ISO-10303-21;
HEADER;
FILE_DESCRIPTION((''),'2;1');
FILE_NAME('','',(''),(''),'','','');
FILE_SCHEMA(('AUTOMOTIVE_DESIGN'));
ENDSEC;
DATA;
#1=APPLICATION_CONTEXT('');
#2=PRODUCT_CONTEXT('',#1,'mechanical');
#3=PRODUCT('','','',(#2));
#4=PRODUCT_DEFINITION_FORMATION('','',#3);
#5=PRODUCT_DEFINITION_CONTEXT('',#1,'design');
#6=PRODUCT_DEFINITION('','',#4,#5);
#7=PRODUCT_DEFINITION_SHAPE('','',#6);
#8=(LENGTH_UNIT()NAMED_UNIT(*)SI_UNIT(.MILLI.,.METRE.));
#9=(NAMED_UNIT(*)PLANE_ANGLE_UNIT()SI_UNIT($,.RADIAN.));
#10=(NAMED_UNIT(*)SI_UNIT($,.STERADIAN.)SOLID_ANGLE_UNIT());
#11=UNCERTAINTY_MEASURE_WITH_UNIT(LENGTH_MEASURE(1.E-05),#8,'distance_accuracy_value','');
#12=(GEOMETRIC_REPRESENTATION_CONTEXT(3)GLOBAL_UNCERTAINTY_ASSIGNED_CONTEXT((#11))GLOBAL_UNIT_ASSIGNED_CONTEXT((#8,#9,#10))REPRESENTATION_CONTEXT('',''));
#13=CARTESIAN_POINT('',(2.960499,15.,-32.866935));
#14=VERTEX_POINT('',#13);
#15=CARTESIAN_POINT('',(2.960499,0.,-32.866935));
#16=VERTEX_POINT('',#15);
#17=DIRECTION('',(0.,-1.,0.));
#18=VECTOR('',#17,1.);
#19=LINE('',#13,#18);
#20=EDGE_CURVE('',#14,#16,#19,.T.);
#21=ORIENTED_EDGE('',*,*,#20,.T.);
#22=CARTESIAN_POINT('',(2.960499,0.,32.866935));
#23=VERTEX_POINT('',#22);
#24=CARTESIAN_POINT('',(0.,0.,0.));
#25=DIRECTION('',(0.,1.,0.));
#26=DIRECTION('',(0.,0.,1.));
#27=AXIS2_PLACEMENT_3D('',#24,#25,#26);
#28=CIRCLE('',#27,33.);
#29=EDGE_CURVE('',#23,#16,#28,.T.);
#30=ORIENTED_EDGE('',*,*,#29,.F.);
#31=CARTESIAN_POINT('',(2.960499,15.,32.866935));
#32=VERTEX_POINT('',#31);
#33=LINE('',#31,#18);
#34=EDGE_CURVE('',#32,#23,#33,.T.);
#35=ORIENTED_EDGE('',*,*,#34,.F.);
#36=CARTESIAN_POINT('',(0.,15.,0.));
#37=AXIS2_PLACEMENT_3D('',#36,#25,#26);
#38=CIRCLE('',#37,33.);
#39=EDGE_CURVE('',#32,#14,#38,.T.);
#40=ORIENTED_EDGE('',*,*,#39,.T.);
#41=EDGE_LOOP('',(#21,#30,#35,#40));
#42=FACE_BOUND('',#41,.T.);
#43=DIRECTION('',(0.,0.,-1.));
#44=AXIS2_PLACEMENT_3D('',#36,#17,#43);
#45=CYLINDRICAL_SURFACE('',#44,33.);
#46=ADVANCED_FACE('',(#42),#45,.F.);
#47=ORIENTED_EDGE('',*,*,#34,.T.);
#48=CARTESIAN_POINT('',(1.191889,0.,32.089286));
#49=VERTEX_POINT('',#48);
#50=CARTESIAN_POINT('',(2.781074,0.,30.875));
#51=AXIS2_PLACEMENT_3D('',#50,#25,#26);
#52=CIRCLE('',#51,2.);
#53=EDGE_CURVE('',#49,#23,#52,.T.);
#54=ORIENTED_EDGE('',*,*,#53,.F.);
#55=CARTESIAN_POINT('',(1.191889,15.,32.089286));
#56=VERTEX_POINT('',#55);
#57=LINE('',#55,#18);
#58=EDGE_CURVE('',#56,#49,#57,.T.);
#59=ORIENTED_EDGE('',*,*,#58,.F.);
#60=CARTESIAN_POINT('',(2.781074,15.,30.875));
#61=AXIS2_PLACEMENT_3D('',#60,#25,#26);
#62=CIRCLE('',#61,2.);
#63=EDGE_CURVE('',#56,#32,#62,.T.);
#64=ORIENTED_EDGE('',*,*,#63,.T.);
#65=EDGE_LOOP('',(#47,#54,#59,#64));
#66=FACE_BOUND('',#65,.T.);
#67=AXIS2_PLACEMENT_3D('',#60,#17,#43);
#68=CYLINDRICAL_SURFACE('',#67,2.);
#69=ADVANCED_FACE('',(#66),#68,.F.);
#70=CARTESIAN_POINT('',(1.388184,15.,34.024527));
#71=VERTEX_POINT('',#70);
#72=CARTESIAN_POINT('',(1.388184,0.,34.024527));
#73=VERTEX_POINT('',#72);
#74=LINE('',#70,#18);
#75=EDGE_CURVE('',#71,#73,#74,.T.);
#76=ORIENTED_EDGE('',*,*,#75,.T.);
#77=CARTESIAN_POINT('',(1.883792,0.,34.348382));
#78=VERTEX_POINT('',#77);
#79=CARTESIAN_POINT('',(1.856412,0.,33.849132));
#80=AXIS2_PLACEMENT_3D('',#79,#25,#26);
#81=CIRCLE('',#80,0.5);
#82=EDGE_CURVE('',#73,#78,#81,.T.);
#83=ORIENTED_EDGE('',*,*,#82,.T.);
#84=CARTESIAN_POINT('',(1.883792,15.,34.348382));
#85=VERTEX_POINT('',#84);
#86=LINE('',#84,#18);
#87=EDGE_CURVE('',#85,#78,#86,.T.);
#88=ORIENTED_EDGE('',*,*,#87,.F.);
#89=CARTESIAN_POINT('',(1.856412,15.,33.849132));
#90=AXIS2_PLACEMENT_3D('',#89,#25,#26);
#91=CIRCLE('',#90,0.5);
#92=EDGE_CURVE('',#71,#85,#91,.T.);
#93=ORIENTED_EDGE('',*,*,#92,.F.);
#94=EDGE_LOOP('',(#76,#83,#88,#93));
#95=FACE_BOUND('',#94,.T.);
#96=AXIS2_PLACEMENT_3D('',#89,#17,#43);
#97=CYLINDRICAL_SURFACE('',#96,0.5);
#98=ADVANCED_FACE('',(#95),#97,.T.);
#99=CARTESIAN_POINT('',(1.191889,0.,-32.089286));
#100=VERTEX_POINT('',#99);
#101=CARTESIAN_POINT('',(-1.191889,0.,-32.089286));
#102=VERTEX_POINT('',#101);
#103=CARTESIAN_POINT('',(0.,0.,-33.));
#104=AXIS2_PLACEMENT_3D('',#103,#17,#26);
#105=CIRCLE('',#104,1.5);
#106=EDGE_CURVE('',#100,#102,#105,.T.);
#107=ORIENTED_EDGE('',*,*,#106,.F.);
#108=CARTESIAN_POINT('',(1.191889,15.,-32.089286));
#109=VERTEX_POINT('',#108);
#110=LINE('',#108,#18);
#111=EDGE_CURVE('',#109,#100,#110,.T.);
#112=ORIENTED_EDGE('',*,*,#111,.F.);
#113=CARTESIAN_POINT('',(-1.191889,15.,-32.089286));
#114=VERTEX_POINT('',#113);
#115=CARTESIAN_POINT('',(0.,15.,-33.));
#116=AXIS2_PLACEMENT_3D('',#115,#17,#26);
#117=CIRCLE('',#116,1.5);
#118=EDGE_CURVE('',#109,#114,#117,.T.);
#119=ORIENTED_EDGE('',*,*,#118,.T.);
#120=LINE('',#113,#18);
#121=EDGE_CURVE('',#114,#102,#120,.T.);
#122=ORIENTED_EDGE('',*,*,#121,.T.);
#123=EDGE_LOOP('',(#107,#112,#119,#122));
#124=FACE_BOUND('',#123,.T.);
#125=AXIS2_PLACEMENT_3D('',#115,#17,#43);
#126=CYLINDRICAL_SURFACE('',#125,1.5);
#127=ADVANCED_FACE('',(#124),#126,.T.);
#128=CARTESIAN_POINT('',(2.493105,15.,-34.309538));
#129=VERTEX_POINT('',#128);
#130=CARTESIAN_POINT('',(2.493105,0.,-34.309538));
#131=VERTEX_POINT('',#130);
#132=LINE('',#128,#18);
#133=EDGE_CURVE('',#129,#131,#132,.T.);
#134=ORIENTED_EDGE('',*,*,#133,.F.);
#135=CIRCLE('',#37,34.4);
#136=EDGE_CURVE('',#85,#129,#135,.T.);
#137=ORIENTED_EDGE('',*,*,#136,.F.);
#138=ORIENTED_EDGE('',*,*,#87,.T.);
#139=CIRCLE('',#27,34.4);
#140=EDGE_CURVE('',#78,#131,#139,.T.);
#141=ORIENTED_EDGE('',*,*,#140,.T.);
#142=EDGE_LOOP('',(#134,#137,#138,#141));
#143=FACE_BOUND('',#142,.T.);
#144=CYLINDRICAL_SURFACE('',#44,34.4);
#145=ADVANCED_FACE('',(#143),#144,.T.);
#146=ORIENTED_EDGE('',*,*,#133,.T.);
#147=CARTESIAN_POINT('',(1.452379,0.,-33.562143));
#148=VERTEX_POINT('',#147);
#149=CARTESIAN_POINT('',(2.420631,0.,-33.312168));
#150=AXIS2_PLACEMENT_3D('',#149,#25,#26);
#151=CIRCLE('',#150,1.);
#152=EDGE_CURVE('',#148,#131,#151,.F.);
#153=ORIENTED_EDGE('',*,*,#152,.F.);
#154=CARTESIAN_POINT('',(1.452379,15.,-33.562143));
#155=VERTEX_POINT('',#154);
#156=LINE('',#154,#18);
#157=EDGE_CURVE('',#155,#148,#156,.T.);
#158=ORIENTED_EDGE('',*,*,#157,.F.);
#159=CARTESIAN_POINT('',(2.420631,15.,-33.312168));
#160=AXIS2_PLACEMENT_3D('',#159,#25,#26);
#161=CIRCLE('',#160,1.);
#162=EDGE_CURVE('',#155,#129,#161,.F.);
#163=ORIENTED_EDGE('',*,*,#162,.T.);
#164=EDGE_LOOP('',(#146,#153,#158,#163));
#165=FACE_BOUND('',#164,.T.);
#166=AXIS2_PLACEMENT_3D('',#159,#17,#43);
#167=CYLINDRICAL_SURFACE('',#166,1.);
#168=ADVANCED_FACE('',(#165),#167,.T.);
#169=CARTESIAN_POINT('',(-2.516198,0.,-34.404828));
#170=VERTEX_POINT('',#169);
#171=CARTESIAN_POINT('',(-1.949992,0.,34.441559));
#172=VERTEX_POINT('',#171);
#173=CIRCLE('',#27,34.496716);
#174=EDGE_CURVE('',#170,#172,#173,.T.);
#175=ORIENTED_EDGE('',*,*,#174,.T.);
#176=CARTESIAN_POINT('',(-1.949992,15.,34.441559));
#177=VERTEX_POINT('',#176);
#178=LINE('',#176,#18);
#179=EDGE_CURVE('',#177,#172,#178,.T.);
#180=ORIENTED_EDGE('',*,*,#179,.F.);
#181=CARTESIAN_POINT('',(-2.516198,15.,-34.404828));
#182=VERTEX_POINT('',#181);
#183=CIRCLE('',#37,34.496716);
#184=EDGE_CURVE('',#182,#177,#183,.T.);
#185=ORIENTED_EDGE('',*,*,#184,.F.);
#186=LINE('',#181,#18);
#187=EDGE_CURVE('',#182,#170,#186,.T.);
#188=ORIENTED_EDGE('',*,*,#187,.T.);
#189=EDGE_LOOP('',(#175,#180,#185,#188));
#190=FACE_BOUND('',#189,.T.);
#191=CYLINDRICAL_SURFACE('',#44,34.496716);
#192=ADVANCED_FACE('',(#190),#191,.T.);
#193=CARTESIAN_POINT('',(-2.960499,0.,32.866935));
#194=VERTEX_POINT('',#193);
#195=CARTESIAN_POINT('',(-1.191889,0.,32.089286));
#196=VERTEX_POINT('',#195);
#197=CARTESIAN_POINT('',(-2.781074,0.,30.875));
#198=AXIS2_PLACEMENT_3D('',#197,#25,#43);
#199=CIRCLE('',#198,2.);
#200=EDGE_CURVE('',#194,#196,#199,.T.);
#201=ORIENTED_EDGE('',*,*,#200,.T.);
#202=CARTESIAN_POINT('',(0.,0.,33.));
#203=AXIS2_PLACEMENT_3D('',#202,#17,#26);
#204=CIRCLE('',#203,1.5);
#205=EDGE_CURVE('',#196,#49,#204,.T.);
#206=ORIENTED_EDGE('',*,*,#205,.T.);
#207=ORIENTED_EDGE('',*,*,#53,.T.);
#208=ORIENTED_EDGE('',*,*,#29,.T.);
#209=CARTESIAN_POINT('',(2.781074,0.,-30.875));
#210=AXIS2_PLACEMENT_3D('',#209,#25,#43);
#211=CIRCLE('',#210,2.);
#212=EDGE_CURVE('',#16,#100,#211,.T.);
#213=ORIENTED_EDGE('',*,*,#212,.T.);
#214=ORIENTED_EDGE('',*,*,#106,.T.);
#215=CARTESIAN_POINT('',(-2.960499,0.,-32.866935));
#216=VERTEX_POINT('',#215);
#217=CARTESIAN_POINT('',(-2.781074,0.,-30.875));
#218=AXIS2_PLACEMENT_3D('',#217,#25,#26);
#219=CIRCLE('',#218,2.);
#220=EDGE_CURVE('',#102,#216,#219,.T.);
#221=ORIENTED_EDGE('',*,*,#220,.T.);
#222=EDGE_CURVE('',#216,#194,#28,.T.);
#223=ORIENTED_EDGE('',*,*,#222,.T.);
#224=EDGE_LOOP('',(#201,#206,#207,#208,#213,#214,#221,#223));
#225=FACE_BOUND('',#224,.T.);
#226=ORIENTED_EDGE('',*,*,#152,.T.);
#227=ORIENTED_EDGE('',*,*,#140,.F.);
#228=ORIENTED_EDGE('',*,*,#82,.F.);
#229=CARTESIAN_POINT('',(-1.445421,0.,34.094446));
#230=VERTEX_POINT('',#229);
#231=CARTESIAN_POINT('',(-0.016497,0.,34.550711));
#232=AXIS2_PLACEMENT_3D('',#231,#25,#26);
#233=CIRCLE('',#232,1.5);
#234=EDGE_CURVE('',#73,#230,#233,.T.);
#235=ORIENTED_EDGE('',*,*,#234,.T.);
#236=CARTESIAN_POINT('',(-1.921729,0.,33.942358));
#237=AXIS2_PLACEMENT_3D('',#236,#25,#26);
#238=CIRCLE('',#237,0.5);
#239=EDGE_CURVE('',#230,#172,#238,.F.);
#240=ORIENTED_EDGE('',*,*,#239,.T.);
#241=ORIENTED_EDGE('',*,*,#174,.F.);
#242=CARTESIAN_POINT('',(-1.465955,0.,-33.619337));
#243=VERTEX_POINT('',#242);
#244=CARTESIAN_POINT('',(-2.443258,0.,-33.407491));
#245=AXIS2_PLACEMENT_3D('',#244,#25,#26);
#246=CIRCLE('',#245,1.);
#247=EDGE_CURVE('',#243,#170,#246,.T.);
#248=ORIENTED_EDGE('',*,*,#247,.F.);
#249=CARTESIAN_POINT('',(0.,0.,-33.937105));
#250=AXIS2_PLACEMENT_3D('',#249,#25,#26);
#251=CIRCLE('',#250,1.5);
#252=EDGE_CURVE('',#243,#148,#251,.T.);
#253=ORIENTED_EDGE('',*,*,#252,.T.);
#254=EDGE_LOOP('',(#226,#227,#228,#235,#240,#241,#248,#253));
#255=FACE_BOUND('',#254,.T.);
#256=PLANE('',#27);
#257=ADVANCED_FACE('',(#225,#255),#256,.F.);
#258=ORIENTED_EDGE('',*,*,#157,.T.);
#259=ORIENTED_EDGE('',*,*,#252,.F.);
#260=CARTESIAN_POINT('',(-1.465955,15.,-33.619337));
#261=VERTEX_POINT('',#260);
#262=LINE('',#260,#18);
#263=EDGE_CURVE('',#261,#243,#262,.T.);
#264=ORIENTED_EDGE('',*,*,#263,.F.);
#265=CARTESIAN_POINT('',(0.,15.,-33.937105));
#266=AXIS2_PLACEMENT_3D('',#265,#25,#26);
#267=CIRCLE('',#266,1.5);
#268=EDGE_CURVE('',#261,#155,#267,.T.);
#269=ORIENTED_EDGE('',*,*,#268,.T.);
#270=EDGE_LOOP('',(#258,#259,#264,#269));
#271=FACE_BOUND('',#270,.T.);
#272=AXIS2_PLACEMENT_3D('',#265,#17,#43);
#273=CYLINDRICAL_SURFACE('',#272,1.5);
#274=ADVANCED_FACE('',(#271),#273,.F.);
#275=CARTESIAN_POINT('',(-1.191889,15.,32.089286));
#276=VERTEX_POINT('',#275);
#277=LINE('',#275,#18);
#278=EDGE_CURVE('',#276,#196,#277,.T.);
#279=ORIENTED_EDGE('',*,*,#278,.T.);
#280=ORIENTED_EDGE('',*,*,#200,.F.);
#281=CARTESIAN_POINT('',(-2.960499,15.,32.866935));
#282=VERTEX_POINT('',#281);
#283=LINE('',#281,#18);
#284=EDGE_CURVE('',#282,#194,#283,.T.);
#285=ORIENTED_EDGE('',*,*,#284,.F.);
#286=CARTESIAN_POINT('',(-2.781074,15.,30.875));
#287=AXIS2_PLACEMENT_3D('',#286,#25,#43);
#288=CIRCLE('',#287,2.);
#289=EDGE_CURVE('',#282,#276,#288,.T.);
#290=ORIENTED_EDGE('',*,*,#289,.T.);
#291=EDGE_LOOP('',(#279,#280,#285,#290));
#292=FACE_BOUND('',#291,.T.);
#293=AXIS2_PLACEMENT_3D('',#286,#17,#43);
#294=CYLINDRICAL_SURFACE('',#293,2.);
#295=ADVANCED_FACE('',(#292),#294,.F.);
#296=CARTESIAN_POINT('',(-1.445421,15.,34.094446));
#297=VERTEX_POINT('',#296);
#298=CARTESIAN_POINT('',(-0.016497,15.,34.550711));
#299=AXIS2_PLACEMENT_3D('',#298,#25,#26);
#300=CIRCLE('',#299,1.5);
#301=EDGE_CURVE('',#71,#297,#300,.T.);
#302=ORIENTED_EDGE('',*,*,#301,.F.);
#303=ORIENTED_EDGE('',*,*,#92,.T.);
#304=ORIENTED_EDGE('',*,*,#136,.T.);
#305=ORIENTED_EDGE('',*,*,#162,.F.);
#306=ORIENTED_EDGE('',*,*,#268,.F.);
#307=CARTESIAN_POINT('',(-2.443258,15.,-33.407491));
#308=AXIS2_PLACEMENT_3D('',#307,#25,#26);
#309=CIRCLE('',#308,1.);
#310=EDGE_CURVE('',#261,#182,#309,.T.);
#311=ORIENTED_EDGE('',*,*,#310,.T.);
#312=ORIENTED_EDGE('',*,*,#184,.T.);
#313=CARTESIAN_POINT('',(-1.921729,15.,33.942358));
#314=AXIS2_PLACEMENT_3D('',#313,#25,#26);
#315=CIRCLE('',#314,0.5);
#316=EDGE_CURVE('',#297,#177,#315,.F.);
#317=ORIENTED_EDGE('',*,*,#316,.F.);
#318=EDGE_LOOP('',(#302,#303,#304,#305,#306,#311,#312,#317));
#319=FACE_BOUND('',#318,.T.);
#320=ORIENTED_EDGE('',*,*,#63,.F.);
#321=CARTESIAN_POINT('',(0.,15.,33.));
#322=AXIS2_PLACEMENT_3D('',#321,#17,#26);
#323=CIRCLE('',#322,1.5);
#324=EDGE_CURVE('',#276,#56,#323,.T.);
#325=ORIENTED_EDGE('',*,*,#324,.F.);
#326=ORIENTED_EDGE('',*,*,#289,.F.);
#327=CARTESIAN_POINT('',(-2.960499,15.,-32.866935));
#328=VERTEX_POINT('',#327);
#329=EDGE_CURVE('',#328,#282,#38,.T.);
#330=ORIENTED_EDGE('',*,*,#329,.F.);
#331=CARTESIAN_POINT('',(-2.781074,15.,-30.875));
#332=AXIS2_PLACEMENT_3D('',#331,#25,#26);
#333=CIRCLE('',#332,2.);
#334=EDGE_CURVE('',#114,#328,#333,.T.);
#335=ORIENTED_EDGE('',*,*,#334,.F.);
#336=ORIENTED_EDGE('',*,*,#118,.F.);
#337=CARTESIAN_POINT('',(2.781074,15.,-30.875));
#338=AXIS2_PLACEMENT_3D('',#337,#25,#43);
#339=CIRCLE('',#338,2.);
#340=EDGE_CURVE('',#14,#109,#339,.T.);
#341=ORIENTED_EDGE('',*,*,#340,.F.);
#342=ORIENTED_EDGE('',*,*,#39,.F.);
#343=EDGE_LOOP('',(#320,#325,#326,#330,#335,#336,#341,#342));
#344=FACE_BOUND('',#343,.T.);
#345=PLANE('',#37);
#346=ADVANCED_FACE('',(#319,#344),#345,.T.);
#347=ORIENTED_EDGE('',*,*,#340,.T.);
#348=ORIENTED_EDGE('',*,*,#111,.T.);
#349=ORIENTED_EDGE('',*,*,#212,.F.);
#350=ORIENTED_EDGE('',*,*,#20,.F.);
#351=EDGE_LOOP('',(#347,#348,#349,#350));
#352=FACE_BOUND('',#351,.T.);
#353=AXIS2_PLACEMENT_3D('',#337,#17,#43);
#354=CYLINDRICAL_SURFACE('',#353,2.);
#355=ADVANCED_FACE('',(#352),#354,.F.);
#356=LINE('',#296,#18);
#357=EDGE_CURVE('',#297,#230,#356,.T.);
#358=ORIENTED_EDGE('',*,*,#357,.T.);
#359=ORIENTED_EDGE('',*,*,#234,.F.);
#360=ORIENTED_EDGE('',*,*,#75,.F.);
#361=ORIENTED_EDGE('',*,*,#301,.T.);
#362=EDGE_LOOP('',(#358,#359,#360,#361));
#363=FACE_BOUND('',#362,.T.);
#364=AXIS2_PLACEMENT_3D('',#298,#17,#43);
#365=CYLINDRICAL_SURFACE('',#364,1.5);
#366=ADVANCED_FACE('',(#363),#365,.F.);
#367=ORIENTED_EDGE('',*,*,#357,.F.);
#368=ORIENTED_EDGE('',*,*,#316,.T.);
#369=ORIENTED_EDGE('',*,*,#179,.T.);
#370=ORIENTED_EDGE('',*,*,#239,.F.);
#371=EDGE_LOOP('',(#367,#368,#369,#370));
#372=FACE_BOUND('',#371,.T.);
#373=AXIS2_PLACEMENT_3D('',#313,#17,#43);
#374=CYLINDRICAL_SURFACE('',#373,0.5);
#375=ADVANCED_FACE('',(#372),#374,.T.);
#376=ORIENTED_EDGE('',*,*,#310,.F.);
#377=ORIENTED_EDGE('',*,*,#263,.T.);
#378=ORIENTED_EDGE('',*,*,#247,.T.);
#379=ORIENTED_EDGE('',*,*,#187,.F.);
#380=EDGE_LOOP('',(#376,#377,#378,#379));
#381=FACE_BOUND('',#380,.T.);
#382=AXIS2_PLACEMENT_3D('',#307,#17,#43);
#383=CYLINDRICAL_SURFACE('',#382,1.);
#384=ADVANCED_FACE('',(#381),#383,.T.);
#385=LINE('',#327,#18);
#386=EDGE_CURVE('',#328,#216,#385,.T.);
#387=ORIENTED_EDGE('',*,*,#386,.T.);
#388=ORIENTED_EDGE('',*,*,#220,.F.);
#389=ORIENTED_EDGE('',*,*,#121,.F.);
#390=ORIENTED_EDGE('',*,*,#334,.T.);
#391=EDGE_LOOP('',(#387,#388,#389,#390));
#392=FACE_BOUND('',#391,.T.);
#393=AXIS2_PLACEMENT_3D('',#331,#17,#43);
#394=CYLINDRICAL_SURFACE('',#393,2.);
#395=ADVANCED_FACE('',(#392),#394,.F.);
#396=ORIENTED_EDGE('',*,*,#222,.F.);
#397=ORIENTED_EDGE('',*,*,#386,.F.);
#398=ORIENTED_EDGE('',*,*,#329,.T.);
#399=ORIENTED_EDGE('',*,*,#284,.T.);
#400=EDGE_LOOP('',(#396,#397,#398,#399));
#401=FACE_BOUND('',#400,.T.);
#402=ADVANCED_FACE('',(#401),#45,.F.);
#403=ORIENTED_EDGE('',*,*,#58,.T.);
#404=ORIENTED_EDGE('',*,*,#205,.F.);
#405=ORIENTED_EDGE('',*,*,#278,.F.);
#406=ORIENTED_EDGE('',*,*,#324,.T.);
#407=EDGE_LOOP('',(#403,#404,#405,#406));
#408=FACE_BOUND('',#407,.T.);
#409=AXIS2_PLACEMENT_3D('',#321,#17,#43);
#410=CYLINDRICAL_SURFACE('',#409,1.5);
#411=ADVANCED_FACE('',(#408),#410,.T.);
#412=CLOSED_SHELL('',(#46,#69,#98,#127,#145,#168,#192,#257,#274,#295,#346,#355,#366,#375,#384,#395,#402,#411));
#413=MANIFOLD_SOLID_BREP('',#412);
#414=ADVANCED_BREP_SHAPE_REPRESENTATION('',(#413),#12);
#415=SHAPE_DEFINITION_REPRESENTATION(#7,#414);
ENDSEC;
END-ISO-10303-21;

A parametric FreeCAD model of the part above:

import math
import FreeCAD as App
import Part
import Sketcher
from FreeCAD import Vector

doc = App.newDocument("Part")
body = doc.addObject("PartDesign::Body", "Body")

sketch1 = doc.addObject("Sketcher::SketchObject", "Sketch")
body.addObject(sketch1)
sketch1.AttachmentSupport = (doc.XZ_Plane, [""])
sketch1.MapMode = "FlatFace"
sketch1.addGeometry([
    Part.ArcOfCircle(Part.Circle(Vector(1.9, 33.8, 0), Vector(0, 0, 1), 0.5), math.radians(87), math.radians(159)),
    Part.ArcOfCircle(Part.Circle(Vector(0, 0, 0), Vector(0, 0, 1), 34.4), math.radians(3), math.radians(87)),
    Part.ArcOfCircle(Part.Circle(Vector(0, 0, 0), Vector(0, 0, 1), 34.4), math.radians(-86), math.radians(3)),
    Part.ArcOfCircle(Part.Circle(Vector(2.4, -33.3, 0), Vector(0, 0, 1), 1), math.radians(-166), math.radians(-86)),
    Part.ArcOfCircle(Part.Circle(Vector(0, -33.9, 0), Vector(0, 0, 1), 1.5), math.radians(14), math.radians(168)),
    Part.ArcOfCircle(Part.Circle(Vector(-2.4, -33.4, 0), Vector(0, 0, 1), 1), math.radians(-94), math.radians(-12)),
    Part.ArcOfCircle(Part.Circle(Vector(0, 0, 0), Vector(0, 0, 1), 34.5), math.radians(177), math.radians(266)),
    Part.ArcOfCircle(Part.Circle(Vector(0, 0, 0), Vector(0, 0, 1), 34.5), math.radians(93), math.radians(177)),
    Part.ArcOfCircle(Part.Circle(Vector(-1.9, 33.9, 0), Vector(0, 0, 1), 0.5), math.radians(18), math.radians(93)),
    Part.ArcOfCircle(Part.Circle(Vector(0, 34.6, 0), Vector(0, 0, 1), 1.5), math.radians(-162), math.radians(-21)),
    Part.ArcOfCircle(Part.Circle(Vector(0, 0, 0), Vector(0, 0, 1), 4), math.radians(-53), math.radians(233)),
    Part.LineSegment(Vector(-2.4, -3.2, 0), Vector(2.4, -3.2, 0)),
], False)
sketch1.addConstraint([
    Sketcher.Constraint("Tangent", 0, 1, 1, 2),
    Sketcher.Constraint("Tangent", 1, 1, 2, 2),
    Sketcher.Constraint("Tangent", 2, 1, 3, 2),
    Sketcher.Constraint("Tangent", 3, 1, 4, 1),
    Sketcher.Constraint("Tangent", 4, 2, 5, 2),
    Sketcher.Constraint("Tangent", 5, 1, 6, 2),
    Sketcher.Constraint("Tangent", 6, 1, 7, 2),
    Sketcher.Constraint("Tangent", 7, 1, 8, 2),
    Sketcher.Constraint("Tangent", 8, 1, 9, 1),
    Sketcher.Constraint("Tangent", 9, 2, 0, 2),
    Sketcher.Constraint("Coincident", 10, 1, 11, 2),
    Sketcher.Constraint("Coincident", 11, 1, 10, 2),
    Sketcher.Constraint("Horizontal", 11),
    Sketcher.Constraint("Coincident", 1, 3, -1, 1),
    Sketcher.Constraint("Coincident", 6, 3, -1, 1),
    Sketcher.Constraint("Coincident", 10, 3, -1, 1),
    Sketcher.Constraint("Equal", 1, 2),
    Sketcher.Constraint("Equal", 3, 5),
    Sketcher.Constraint("Equal", 6, 7),
    Sketcher.Constraint("Equal", 0, 8),
    Sketcher.Constraint("Equal", 4, 9),
    Sketcher.Constraint("PointOnObject", 4, 3, -2),
    Sketcher.Constraint("Radius", 3, 1.0),
    Sketcher.Constraint("Radius", 10, 4.0),
    Sketcher.Constraint("Radius", 0, 0.5),
    Sketcher.Constraint("Radius", 1, 34.4),
    Sketcher.Constraint("Radius", 4, 1.5),
    Sketcher.Constraint("DistanceX", 11, 1, 11, 2, 4.834),
    Sketcher.Constraint("Radius", 6, 34.496716),
    Sketcher.Constraint("DistanceX", 5, 1, -1, 1, 2.516198),
    Sketcher.Constraint("DistanceY", 3, 3, 0, 3, 67.1613),
    Sketcher.Constraint("DistanceX", 8, 3, -1, 1, 1.921729),
    Sketcher.Constraint("DistanceX", -1, 1, 1, 1, 34.365791),
    Sketcher.Constraint("DistanceX", 6, 1, -1, 1, 34.462378),
])
pad1 = doc.addObject("PartDesign::Pad", "Pad")
body.addObject(pad1)
pad1.Profile = sketch1
pad1.Length = 15
pad1.Reversed = True

sketch2 = doc.addObject("Sketcher::SketchObject", "Sketch001")
body.addObject(sketch2)
sketch2.AttachmentSupport = (doc.XZ_Plane, [""])
sketch2.MapMode = "FlatFace"
sketch2.addGeometry([
    Part.ArcOfCircle(Part.Circle(Vector(0, 0, 0), Vector(0, 0, 1), 33), math.radians(95), math.radians(175)),
    Part.ArcOfCircle(Part.Circle(Vector(-2.8, 30.9, 0), Vector(0, 0, 1), 2), math.radians(37), math.radians(95)),
    Part.ArcOfCircle(Part.Circle(Vector(0, 33, 0), Vector(0, 0, 1), 1.5), math.radians(-143), math.radians(-37)),
    Part.ArcOfCircle(Part.Circle(Vector(2.8, 30.9, 0), Vector(0, 0, 1), 2), math.radians(85), math.radians(143)),
    Part.ArcOfCircle(Part.Circle(Vector(0, 0, 0), Vector(0, 0, 1), 33), math.radians(5), math.radians(85)),
    Part.ArcOfCircle(Part.Circle(Vector(0, 0, 0), Vector(0, 0, 1), 33), math.radians(-85), math.radians(5)),
    Part.ArcOfCircle(Part.Circle(Vector(2.8, -30.9, 0), Vector(0, 0, 1), 2), math.radians(-143), math.radians(-85)),
    Part.ArcOfCircle(Part.Circle(Vector(0, -33, 0), Vector(0, 0, 1), 1.5), math.radians(37), math.radians(143)),
    Part.ArcOfCircle(Part.Circle(Vector(-2.8, -30.9, 0), Vector(0, 0, 1), 2), math.radians(-95), math.radians(-37)),
    Part.ArcOfCircle(Part.Circle(Vector(0, 0, 0), Vector(0, 0, 1), 33), math.radians(175), math.radians(265)),
], False)
sketch2.addConstraint([
    Sketcher.Constraint("Tangent", 0, 1, 1, 2),
    Sketcher.Constraint("Tangent", 1, 1, 2, 1),
    Sketcher.Constraint("Tangent", 2, 2, 3, 2),
    Sketcher.Constraint("Tangent", 3, 1, 4, 2),
    Sketcher.Constraint("Tangent", 4, 1, 5, 2),
    Sketcher.Constraint("Tangent", 5, 1, 6, 2),
    Sketcher.Constraint("Tangent", 6, 1, 7, 1),
    Sketcher.Constraint("Tangent", 7, 2, 8, 2),
    Sketcher.Constraint("Tangent", 8, 1, 9, 2),
    Sketcher.Constraint("Tangent", 9, 1, 0, 2),
    Sketcher.Constraint("Coincident", 0, 3, -1, 1),
    Sketcher.Constraint("Coincident", 4, 3, -1, 1),
    Sketcher.Constraint("Equal", 1, 3),
    Sketcher.Constraint("Equal", 0, 4),
    Sketcher.Constraint("Equal", 4, 5),
    Sketcher.Constraint("Equal", 3, 6),
    Sketcher.Constraint("Equal", 2, 7),
    Sketcher.Constraint("Equal", 6, 8),
    Sketcher.Constraint("Equal", 5, 9),
    Sketcher.Constraint("Symmetric", 2, 3, 7, 3, -1, 1),
    Sketcher.Constraint("PointOnObject", 2, 3, -2),
    Sketcher.Constraint("Horizontal", 4, 1, 9, 1),
    Sketcher.Constraint("Radius", 0, 33.0),
    Sketcher.Constraint("Radius", 1, 2.0),
    Sketcher.Constraint("Radius", 2, 1.5),
    Sketcher.Constraint("DistanceY", -1, 1, 2, 3, 33.0),
    Sketcher.Constraint("DistanceY", -1, 1, 4, 1, 2.960499),
])
pocket1 = doc.addObject("PartDesign::Pocket", "Pocket")
body.addObject(pocket1)
pocket1.Profile = sketch2
pocket1.Type = "ThroughAll"

doc.recompute()
